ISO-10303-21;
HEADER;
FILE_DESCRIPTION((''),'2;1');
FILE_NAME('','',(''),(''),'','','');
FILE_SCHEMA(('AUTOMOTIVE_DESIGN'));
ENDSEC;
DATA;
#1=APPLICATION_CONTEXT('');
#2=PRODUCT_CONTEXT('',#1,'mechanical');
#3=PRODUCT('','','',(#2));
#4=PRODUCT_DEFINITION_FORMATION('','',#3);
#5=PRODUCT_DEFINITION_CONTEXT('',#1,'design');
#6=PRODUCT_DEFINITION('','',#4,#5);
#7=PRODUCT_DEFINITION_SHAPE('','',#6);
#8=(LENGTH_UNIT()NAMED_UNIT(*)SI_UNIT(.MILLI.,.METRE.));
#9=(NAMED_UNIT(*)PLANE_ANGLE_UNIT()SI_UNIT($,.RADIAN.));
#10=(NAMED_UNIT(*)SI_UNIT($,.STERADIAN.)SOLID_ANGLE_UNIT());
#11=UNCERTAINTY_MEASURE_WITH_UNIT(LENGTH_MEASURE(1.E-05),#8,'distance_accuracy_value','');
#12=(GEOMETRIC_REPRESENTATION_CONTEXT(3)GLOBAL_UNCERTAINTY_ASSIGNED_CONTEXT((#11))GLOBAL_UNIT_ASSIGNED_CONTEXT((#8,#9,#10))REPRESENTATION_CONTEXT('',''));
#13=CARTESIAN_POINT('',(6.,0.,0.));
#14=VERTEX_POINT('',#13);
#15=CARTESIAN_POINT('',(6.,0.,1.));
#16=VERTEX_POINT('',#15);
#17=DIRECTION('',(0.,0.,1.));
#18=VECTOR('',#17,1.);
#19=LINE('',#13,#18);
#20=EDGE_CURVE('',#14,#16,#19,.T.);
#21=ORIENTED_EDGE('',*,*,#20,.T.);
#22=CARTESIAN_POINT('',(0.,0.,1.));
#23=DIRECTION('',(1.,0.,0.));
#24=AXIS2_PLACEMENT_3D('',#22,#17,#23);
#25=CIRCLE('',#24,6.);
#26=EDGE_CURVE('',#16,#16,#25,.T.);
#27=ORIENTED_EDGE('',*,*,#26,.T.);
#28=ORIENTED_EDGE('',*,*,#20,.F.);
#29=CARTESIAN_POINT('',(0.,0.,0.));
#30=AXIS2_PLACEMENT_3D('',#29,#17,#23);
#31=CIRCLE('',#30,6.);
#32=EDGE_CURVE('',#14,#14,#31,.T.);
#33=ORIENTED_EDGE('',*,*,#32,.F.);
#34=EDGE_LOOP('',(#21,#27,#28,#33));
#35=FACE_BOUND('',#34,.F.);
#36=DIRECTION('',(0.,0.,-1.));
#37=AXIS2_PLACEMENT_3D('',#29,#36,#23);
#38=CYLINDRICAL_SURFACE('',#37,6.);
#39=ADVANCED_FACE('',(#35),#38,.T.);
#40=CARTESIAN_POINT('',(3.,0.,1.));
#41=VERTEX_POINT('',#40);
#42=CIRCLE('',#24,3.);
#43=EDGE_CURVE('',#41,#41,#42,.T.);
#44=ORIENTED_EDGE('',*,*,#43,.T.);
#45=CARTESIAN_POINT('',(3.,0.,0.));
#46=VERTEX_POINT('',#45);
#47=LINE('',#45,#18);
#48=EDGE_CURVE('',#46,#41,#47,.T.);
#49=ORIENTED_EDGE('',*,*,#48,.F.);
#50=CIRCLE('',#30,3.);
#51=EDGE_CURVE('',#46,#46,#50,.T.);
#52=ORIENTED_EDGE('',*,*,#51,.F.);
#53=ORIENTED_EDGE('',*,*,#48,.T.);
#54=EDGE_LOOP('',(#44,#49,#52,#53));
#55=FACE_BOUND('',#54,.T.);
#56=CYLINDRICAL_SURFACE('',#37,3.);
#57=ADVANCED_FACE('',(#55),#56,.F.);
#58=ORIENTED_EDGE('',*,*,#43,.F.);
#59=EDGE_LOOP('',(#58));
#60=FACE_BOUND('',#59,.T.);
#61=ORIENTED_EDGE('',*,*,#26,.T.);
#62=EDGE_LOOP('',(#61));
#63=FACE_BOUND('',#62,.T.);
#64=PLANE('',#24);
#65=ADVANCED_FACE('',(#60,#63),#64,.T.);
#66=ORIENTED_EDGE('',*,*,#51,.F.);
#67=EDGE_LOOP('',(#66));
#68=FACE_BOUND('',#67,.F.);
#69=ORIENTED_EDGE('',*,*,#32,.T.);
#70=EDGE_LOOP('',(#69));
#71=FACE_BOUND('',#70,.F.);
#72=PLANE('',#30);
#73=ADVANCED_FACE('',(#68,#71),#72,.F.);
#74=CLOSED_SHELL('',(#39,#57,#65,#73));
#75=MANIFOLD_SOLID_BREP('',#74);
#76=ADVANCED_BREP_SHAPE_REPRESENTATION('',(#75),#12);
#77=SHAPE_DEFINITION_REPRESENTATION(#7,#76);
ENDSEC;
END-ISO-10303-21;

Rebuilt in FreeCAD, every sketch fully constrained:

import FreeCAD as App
import Part
import Sketcher

V = App.Vector
Q = App.Units.Quantity

doc = App.newDocument("Part")
body = doc.addObject("PartDesign::Body", "Body")

sketch1 = doc.addObject("Sketcher::SketchObject", "Sketch")
body.addObject(sketch1)
sketch1.AttachmentSupport = (doc.XY_Plane, [""])
sketch1.MapMode = "FlatFace"
sketch1.addGeometry([
    Part.Circle(V(0, 0, 0), V(0, 0, 1), 6),
    Part.Circle(V(0, 0, 0), V(0, 0, 1), 3),
], False)
sketch1.addConstraint([
    Sketcher.Constraint("Coincident", 0, 3, -1, 1),
    Sketcher.Constraint("Coincident", 1, 3, -1, 1),
    Sketcher.Constraint("Diameter", 0, Q("12 mm")),
    Sketcher.Constraint("Diameter", 1, Q("6 mm")),
])
pad1 = doc.addObject("PartDesign::Pad", "Pad")
body.addObject(pad1)
pad1.Profile = sketch1
pad1.Length = 1

doc.recompute()
